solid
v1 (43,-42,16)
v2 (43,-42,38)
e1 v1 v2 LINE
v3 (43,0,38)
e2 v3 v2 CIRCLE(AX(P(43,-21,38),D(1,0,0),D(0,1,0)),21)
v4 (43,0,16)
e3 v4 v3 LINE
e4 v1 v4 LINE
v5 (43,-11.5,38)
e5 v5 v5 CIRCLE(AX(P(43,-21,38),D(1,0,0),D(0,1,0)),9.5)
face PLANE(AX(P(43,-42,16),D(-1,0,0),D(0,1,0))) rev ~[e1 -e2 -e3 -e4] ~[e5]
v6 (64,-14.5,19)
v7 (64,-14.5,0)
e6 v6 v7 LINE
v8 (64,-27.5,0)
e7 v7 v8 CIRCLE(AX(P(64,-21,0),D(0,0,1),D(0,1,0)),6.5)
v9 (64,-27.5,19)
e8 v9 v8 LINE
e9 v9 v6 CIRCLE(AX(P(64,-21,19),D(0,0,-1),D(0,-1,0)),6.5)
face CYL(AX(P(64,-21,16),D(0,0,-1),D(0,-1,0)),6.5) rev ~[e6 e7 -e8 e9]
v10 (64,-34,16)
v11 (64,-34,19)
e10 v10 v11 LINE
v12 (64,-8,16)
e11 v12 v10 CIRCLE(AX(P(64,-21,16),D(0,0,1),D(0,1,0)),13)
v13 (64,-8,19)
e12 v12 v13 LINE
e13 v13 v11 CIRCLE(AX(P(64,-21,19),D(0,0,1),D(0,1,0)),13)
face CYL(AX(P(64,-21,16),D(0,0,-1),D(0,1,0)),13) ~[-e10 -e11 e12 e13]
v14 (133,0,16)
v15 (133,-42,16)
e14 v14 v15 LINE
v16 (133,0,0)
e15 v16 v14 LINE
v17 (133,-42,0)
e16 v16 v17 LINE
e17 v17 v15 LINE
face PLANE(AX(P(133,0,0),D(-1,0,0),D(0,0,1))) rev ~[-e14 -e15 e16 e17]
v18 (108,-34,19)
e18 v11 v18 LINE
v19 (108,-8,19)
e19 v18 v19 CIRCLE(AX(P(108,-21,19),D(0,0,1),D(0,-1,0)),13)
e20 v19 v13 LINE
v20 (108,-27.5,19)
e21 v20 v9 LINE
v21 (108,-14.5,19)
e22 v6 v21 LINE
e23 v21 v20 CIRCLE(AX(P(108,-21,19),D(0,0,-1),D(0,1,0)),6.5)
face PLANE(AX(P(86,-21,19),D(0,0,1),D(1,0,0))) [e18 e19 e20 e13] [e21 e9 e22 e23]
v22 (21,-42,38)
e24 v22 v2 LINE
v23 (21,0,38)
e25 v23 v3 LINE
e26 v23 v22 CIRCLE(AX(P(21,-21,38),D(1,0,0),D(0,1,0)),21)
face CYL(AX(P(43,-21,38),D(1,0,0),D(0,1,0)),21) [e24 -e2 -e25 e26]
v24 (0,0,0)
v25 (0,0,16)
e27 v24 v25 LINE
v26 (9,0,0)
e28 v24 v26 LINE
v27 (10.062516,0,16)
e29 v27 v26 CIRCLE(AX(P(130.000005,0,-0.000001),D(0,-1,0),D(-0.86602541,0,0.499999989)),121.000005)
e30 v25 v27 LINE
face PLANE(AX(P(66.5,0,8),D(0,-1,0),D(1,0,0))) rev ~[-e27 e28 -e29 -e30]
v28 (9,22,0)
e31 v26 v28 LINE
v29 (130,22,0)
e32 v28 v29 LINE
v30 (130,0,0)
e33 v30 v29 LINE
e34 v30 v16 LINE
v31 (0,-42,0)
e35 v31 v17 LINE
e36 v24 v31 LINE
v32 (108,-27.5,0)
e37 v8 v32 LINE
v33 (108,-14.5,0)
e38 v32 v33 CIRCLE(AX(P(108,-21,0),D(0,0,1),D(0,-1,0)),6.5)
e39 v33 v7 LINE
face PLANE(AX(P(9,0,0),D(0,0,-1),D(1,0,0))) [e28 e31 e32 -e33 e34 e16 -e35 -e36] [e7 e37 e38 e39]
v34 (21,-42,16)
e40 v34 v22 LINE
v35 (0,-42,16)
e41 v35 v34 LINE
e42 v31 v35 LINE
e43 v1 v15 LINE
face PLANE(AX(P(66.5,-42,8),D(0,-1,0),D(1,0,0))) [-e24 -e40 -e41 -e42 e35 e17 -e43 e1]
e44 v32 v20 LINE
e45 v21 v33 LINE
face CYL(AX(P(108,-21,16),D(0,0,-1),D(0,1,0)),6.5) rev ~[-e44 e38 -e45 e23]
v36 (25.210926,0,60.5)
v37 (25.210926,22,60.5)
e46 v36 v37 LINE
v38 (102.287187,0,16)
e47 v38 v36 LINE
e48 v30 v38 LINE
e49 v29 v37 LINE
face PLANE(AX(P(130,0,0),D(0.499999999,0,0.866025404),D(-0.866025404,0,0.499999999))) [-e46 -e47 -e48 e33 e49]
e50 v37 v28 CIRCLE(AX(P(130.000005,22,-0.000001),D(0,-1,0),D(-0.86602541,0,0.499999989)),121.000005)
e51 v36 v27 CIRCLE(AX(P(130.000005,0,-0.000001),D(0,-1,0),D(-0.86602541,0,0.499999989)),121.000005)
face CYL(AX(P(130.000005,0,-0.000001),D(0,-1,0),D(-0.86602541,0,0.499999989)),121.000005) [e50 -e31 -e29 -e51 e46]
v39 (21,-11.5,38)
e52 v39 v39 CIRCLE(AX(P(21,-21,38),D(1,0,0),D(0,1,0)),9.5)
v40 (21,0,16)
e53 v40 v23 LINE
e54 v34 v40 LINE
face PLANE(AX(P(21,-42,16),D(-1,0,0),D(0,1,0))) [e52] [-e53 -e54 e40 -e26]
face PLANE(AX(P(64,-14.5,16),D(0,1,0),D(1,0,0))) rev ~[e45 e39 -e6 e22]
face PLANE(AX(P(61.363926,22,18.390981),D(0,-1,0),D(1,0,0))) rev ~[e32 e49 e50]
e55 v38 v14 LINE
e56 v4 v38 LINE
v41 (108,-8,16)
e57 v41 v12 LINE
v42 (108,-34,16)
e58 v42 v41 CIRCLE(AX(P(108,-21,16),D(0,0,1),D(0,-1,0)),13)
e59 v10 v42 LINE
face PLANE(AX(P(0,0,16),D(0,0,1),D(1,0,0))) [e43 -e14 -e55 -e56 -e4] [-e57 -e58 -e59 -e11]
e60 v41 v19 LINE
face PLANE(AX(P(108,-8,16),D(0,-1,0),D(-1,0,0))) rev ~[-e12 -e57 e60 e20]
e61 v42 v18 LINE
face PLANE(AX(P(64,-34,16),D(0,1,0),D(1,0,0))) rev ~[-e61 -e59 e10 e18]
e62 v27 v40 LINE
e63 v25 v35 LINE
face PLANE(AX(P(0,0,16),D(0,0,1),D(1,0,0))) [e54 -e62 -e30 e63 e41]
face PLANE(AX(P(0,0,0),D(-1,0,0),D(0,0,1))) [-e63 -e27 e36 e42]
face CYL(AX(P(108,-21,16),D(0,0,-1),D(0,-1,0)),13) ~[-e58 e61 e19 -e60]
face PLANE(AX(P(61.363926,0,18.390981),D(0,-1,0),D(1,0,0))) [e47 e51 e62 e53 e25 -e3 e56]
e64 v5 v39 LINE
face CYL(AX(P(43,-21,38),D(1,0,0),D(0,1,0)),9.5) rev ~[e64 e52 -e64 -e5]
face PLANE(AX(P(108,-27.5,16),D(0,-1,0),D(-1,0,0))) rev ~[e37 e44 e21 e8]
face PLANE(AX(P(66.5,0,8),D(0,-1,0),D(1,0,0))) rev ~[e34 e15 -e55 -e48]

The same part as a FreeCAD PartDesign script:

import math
import FreeCAD as App
import Part
import Sketcher
from FreeCAD import Vector
Q = App.Units.Quantity


def add_polygon(sketch, points):
    """Adds a closed chain of lines whose ends are joined by coincident constraints."""
    first, n = sketch.GeometryCount, len(points)
    for a, b in zip(points, points[1:] + points[:1]):
        sketch.addGeometry(Part.LineSegment(App.Vector(*a, 0), App.Vector(*b, 0)), False)
    for i in range(n):
        sketch.addConstraint(Sketcher.Constraint("Coincident", first + i, 2, first + (i + 1) % n, 1))

doc = App.newDocument("Part")
body = doc.addObject("PartDesign::Body", "Body")

sketch1 = doc.addObject("Sketcher::SketchObject", "Sketch")
body.addObject(sketch1)
sketch1.AttachmentSupport = (doc.XZ_Plane, [""])
sketch1.MapMode = "FlatFace"
add_polygon(sketch1, [(0, 16), (0, 0), (133, 0), (133, 16)])
sketch1.addConstraint(Sketcher.Constraint("Vertical", 0))
sketch1.addConstraint(Sketcher.Constraint("Horizontal", 1))
sketch1.addConstraint(Sketcher.Constraint("Vertical", 2))
sketch1.addConstraint(Sketcher.Constraint("Horizontal", 3))
sketch1.addConstraint(Sketcher.Constraint("Coincident", 0, 2, -1, 1))
sketch1.addConstraint(Sketcher.Constraint("DistanceX", 1, 1, 1, 2, Q("133 mm")))
sketch1.addConstraint(Sketcher.Constraint("DistanceY", 0, 2, 0, 1, Q("16 mm")))
pad1 = doc.addObject("PartDesign::Pad", "Pad")
body.addObject(pad1)
pad1.Profile = sketch1
pad1.Length = 42

sketch2 = doc.addObject("Sketcher::SketchObject", "Sketch001")
body.addObject(sketch2)
sketch2.AttachmentSupport = (doc.XY_Plane, [""])
sketch2.MapMode = "FlatFace"
sketch2.AttachmentOffset = App.Placement(Vector(0, 0, 16), App.Rotation())
add_polygon(sketch2, [(21, 0), (21, -42), (43, -42), (43, 0)])
sketch2.addConstraint(Sketcher.Constraint("Vertical", 0))
sketch2.addConstraint(Sketcher.Constraint("Horizontal", 1))
sketch2.addConstraint(Sketcher.Constraint("Vertical", 2))
sketch2.addConstraint(Sketcher.Constraint("Horizontal", 3))
sketch2.addConstraint(Sketcher.Constraint("PointOnObject", 2, 2, -1))
sketch2.addConstraint(Sketcher.Constraint("DistanceX", 1, 1, 1, 2, Q("22 mm")))
sketch2.addConstraint(Sketcher.Constraint("DistanceY", 0, 2, 0, 1, Q("42 mm")))
sketch2.addConstraint(Sketcher.Constraint("DistanceX", -1, 1, 0, 2, Q("21 mm")))
pad2 = doc.addObject("PartDesign::Pad", "Pad001")
body.addObject(pad2)
pad2.Profile = sketch2
pad2.Length = 22

sketch3 = doc.addObject("Sketcher::SketchObject", "Sketch002")
body.addObject(sketch3)
sketch3.AttachmentSupport = (doc.XY_Plane, [""])
sketch3.MapMode = "FlatFace"
sketch3.AttachmentOffset = App.Placement(Vector(0, 0, 16), App.Rotation())
sketch3.addGeometry(Part.ArcOfCircle(Part.Circle(Vector(64, -21, 0), Vector(0, 0, 1), 6.5), math.radians(90), math.radians(270)), False)
sketch3.addGeometry(Part.LineSegment(Vector(64, -27.5, 0), Vector(108, -27.5, 0)), False)
sketch3.addGeometry(Part.ArcOfCircle(Part.Circle(Vector(108, -21, 0), Vector(0, 0, 1), 6.5), math.radians(-90), math.radians(90)), False)
sketch3.addGeometry(Part.LineSegment(Vector(108, -14.5, 0), Vector(64, -14.5, 0)), False)
sketch3.addConstraint(Sketcher.Constraint("Tangent", 0, 2, 1, 1))
sketch3.addConstraint(Sketcher.Constraint("Tangent", 1, 2, 2, 1))
sketch3.addConstraint(Sketcher.Constraint("Tangent", 2, 2, 3, 1))
sketch3.addConstraint(Sketcher.Constraint("Tangent", 3, 2, 0, 1))
sketch3.addConstraint(Sketcher.Constraint("Horizontal", 1))
sketch3.addConstraint(Sketcher.Constraint("Horizontal", 3))
sketch3.addConstraint(Sketcher.Constraint("Radius", 0, Q("6.5 mm")))
sketch3.addConstraint(Sketcher.Constraint("DistanceX", 1, 1, 1, 2, Q("44 mm")))
sketch3.addConstraint(Sketcher.Constraint("DistanceX", -1, 1, 0, 3, Q("64 mm")))
sketch3.addConstraint(Sketcher.Constraint("DistanceY", 0, 3, -1, 1, Q("21 mm")))
pocket1 = doc.addObject("PartDesign::Pocket", "Pocket")
body.addObject(pocket1)
pocket1.Profile = sketch3
pocket1.Type = "ThroughAll"

sketch4 = doc.addObject("Sketcher::SketchObject", "Sketch003")
body.addObject(sketch4)
sketch4.AttachmentSupport = (doc.XY_Plane, [""])
sketch4.MapMode = "FlatFace"
sketch4.AttachmentOffset = App.Placement(Vector(0, 0, 16), App.Rotation())
sketch4.addGeometry(Part.ArcOfCircle(Part.Circle(Vector(64, -21, 0), Vector(0, 0, 1), 13), math.radians(90), math.radians(270)), False)
sketch4.addGeometry(Part.LineSegment(Vector(64, -34, 0), Vector(108, -34, 0)), False)
sketch4.addGeometry(Part.ArcOfCircle(Part.Circle(Vector(108, -21, 0), Vector(0, 0, 1), 13), math.radians(-90), math.radians(90)), False)
sketch4.addGeometry(Part.LineSegment(Vector(108, -8, 0), Vector(64, -8, 0)), False)
sketch4.addGeometry(Part.ArcOfCircle(Part.Circle(Vector(108, -21, 0), Vector(0, 0, 1), 6.5), math.radians(-90), math.radians(90)), False)
sketch4.addGeometry(Part.LineSegment(Vector(108, -27.5, 0), Vector(64, -27.5, 0)), False)
sketch4.addGeometry(Part.ArcOfCircle(Part.Circle(Vector(64, -21, 0), Vector(0, 0, 1), 6.5), math.radians(90), math.radians(270)), False)
sketch4.addGeometry(Part.LineSegment(Vector(64, -14.5, 0), Vector(108, -14.5, 0)), False)
sketch4.addConstraint(Sketcher.Constraint("Tangent", 0, 2, 1, 1))
sketch4.addConstraint(Sketcher.Constraint("Tangent", 1, 2, 2, 1))
sketch4.addConstraint(Sketcher.Constraint("Tangent", 2, 2, 3, 1))
sketch4.addConstraint(Sketcher.Constraint("Tangent", 3, 2, 0, 1))
sketch4.addConstraint(Sketcher.Constraint("Tangent", 4, 1, 5, 1))
sketch4.addConstraint(Sketcher.Constraint("Tangent", 5, 2, 6, 2))
sketch4.addConstraint(Sketcher.Constraint("Tangent", 6, 1, 7, 1))
sketch4.addConstraint(Sketcher.Constraint("Tangent", 7, 2, 4, 2))
sketch4.addConstraint(Sketcher.Constraint("Horizontal", 1))
sketch4.addConstraint(Sketcher.Constraint("Horizontal", 3))
sketch4.addConstraint(Sketcher.Constraint("Horizontal", 5))
sketch4.addConstraint(Sketcher.Constraint("Horizontal", 7))
sketch4.addConstraint(Sketcher.Constraint("Coincident", 4, 3, 2, 3))
sketch4.addConstraint(Sketcher.Constraint("Vertical", 6, 3, 0, 2))
sketch4.addConstraint(Sketcher.Constraint("Radius", 0, Q("13 mm")))
sketch4.addConstraint(Sketcher.Constraint("Radius", 4, Q("6.5 mm")))
sketch4.addConstraint(Sketcher.Constraint("DistanceX", 1, 1, 1, 2, Q("44 mm")))
sketch4.addConstraint(Sketcher.Constraint("DistanceX", -1, 1, 0, 3, Q("64 mm")))
sketch4.addConstraint(Sketcher.Constraint("DistanceY", 0, 3, -1, 1, Q("21 mm")))
pad3 = doc.addObject("PartDesign::Pad", "Pad002")
body.addObject(pad3)
pad3.Profile = sketch4
pad3.Length = 3

sketch5 = doc.addObject("Sketcher::SketchObject", "Sketch004")
body.addObject(sketch5)
sketch5.AttachmentSupport = (doc.YZ_Plane, [""])
sketch5.MapMode = "FlatFace"
sketch5.AttachmentOffset = App.Placement(Vector(0, 0, 43), App.Rotation())
sketch5.addGeometry(Part.ArcOfCircle(Part.Circle(Vector(-21, 38, 0), Vector(0, 0, 1), 9.5), math.radians(180), math.radians(360)), False)
sketch5.addGeometry(Part.LineSegment(Vector(-11.5, 38, 0), Vector(0, 38, 0)), False)
sketch5.addGeometry(Part.ArcOfCircle(Part.Circle(Vector(-21, 38, 0), Vector(0, 0, 1), 21), math.radians(0), math.radians(180)), False)
sketch5.addGeometry(Part.LineSegment(Vector(-42, 38, 0), Vector(-30.5, 38, 0)), False)
sketch5.addConstraint(Sketcher.Constraint("Coincident", 0, 2, 1, 1))
sketch5.addConstraint(Sketcher.Constraint("Coincident", 1, 2, 2, 1))
sketch5.addConstraint(Sketcher.Constraint("Coincident", 2, 2, 3, 1))
sketch5.addConstraint(Sketcher.Constraint("Coincident", 3, 2, 0, 1))
sketch5.addConstraint(Sketcher.Constraint("Horizontal", 1))
sketch5.addConstraint(Sketcher.Constraint("Horizontal", 3))
sketch5.addConstraint(Sketcher.Constraint("Coincident", 2, 3, 0, 3))
sketch5.addConstraint(Sketcher.Constraint("PointOnObject", 1, 2, -2))
sketch5.addConstraint(Sketcher.Constraint("Horizontal", 2, 3, 0, 2))
sketch5.addConstraint(Sketcher.Constraint("Horizontal", 1, 2, 2, 2))
sketch5.addConstraint(Sketcher.Constraint("Radius", 2, Q("21 mm")))
sketch5.addConstraint(Sketcher.Constraint("Radius", 0, Q("9.5 mm")))
sketch5.addConstraint(Sketcher.Constraint("DistanceY", -1, 1, 0, 3, Q("38 mm")))
pad4 = doc.addObject("PartDesign::Pad", "Pad003")
body.addObject(pad4)
pad4.Profile = sketch5
pad4.Length = 22
pad4.Reversed = True

sketch6 = doc.addObject("Sketcher::SketchObject", "Sketch005")
body.addObject(sketch6)
sketch6.AttachmentSupport = (doc.YZ_Plane, [""])
sketch6.MapMode = "FlatFace"
sketch6.AttachmentOffset = App.Placement(Vector(0, 0, 43), App.Rotation())
sketch6.addGeometry(Part.Circle(Vector(-21, 38, 0), Vector(0, 0, 1), 9.5), False)
sketch6.addConstraint(Sketcher.Constraint("Diameter", 0, Q("19 mm")))
sketch6.addConstraint(Sketcher.Constraint("DistanceX", 0, 3, -1, 1, Q("21 mm")))
sketch6.addConstraint(Sketcher.Constraint("DistanceY", -1, 1, 0, 3, Q("38 mm")))
pocket2 = doc.addObject("PartDesign::Pocket", "Pocket001")
body.addObject(pocket2)
pocket2.Profile = sketch6
pocket2.Type = "ThroughAll"

sketch7 = doc.addObject("Sketcher::SketchObject", "Sketch006")
body.addObject(sketch7)
sketch7.AttachmentSupport = (doc.XZ_Plane, [""])
sketch7.MapMode = "FlatFace"
sketch7.addGeometry(Part.ArcOfCircle(Part.Circle(Vector(130.000005, -0.000001, 0), Vector(0, 0, 1), 121.000005), math.radians(150.000001), math.radians(180)), False)
sketch7.addGeometry(Part.LineSegment(Vector(9, 0, 0), Vector(130, 0, 0)), False)
sketch7.addGeometry(Part.LineSegment(Vector(130, 0, 0), Vector(25.210926, 60.5, 0)), False)
sketch7.addConstraint(Sketcher.Constraint("Coincident", 0, 2, 1, 1))
sketch7.addConstraint(Sketcher.Constraint("Coincident", 1, 2, 2, 1))
sketch7.addConstraint(Sketcher.Constraint("Coincident", 2, 2, 0, 1))
sketch7.addConstraint(Sketcher.Constraint("Horizontal", 1))
sketch7.addConstraint(Sketcher.Constraint("Coincident", 1, 2, 0, 3))
sketch7.addConstraint(Sketcher.Constraint("PointOnObject", 0, 3, -1))
sketch7.addConstraint(Sketcher.Constraint("DistanceX", 1, 1, 1, 2, Q("121 mm")))
sketch7.addConstraint(Sketcher.Constraint("Angle", 2, Q("150 deg")))
sketch7.addConstraint(Sketcher.Constraint("DistanceX", -1, 1, 0, 2, Q("9 mm")))
pad5 = doc.addObject("PartDesign::Pad", "Pad004")
body.addObject(pad5)
pad5.Profile = sketch7
pad5.Length = 22
pad5.Reversed = True

doc.recompute()
